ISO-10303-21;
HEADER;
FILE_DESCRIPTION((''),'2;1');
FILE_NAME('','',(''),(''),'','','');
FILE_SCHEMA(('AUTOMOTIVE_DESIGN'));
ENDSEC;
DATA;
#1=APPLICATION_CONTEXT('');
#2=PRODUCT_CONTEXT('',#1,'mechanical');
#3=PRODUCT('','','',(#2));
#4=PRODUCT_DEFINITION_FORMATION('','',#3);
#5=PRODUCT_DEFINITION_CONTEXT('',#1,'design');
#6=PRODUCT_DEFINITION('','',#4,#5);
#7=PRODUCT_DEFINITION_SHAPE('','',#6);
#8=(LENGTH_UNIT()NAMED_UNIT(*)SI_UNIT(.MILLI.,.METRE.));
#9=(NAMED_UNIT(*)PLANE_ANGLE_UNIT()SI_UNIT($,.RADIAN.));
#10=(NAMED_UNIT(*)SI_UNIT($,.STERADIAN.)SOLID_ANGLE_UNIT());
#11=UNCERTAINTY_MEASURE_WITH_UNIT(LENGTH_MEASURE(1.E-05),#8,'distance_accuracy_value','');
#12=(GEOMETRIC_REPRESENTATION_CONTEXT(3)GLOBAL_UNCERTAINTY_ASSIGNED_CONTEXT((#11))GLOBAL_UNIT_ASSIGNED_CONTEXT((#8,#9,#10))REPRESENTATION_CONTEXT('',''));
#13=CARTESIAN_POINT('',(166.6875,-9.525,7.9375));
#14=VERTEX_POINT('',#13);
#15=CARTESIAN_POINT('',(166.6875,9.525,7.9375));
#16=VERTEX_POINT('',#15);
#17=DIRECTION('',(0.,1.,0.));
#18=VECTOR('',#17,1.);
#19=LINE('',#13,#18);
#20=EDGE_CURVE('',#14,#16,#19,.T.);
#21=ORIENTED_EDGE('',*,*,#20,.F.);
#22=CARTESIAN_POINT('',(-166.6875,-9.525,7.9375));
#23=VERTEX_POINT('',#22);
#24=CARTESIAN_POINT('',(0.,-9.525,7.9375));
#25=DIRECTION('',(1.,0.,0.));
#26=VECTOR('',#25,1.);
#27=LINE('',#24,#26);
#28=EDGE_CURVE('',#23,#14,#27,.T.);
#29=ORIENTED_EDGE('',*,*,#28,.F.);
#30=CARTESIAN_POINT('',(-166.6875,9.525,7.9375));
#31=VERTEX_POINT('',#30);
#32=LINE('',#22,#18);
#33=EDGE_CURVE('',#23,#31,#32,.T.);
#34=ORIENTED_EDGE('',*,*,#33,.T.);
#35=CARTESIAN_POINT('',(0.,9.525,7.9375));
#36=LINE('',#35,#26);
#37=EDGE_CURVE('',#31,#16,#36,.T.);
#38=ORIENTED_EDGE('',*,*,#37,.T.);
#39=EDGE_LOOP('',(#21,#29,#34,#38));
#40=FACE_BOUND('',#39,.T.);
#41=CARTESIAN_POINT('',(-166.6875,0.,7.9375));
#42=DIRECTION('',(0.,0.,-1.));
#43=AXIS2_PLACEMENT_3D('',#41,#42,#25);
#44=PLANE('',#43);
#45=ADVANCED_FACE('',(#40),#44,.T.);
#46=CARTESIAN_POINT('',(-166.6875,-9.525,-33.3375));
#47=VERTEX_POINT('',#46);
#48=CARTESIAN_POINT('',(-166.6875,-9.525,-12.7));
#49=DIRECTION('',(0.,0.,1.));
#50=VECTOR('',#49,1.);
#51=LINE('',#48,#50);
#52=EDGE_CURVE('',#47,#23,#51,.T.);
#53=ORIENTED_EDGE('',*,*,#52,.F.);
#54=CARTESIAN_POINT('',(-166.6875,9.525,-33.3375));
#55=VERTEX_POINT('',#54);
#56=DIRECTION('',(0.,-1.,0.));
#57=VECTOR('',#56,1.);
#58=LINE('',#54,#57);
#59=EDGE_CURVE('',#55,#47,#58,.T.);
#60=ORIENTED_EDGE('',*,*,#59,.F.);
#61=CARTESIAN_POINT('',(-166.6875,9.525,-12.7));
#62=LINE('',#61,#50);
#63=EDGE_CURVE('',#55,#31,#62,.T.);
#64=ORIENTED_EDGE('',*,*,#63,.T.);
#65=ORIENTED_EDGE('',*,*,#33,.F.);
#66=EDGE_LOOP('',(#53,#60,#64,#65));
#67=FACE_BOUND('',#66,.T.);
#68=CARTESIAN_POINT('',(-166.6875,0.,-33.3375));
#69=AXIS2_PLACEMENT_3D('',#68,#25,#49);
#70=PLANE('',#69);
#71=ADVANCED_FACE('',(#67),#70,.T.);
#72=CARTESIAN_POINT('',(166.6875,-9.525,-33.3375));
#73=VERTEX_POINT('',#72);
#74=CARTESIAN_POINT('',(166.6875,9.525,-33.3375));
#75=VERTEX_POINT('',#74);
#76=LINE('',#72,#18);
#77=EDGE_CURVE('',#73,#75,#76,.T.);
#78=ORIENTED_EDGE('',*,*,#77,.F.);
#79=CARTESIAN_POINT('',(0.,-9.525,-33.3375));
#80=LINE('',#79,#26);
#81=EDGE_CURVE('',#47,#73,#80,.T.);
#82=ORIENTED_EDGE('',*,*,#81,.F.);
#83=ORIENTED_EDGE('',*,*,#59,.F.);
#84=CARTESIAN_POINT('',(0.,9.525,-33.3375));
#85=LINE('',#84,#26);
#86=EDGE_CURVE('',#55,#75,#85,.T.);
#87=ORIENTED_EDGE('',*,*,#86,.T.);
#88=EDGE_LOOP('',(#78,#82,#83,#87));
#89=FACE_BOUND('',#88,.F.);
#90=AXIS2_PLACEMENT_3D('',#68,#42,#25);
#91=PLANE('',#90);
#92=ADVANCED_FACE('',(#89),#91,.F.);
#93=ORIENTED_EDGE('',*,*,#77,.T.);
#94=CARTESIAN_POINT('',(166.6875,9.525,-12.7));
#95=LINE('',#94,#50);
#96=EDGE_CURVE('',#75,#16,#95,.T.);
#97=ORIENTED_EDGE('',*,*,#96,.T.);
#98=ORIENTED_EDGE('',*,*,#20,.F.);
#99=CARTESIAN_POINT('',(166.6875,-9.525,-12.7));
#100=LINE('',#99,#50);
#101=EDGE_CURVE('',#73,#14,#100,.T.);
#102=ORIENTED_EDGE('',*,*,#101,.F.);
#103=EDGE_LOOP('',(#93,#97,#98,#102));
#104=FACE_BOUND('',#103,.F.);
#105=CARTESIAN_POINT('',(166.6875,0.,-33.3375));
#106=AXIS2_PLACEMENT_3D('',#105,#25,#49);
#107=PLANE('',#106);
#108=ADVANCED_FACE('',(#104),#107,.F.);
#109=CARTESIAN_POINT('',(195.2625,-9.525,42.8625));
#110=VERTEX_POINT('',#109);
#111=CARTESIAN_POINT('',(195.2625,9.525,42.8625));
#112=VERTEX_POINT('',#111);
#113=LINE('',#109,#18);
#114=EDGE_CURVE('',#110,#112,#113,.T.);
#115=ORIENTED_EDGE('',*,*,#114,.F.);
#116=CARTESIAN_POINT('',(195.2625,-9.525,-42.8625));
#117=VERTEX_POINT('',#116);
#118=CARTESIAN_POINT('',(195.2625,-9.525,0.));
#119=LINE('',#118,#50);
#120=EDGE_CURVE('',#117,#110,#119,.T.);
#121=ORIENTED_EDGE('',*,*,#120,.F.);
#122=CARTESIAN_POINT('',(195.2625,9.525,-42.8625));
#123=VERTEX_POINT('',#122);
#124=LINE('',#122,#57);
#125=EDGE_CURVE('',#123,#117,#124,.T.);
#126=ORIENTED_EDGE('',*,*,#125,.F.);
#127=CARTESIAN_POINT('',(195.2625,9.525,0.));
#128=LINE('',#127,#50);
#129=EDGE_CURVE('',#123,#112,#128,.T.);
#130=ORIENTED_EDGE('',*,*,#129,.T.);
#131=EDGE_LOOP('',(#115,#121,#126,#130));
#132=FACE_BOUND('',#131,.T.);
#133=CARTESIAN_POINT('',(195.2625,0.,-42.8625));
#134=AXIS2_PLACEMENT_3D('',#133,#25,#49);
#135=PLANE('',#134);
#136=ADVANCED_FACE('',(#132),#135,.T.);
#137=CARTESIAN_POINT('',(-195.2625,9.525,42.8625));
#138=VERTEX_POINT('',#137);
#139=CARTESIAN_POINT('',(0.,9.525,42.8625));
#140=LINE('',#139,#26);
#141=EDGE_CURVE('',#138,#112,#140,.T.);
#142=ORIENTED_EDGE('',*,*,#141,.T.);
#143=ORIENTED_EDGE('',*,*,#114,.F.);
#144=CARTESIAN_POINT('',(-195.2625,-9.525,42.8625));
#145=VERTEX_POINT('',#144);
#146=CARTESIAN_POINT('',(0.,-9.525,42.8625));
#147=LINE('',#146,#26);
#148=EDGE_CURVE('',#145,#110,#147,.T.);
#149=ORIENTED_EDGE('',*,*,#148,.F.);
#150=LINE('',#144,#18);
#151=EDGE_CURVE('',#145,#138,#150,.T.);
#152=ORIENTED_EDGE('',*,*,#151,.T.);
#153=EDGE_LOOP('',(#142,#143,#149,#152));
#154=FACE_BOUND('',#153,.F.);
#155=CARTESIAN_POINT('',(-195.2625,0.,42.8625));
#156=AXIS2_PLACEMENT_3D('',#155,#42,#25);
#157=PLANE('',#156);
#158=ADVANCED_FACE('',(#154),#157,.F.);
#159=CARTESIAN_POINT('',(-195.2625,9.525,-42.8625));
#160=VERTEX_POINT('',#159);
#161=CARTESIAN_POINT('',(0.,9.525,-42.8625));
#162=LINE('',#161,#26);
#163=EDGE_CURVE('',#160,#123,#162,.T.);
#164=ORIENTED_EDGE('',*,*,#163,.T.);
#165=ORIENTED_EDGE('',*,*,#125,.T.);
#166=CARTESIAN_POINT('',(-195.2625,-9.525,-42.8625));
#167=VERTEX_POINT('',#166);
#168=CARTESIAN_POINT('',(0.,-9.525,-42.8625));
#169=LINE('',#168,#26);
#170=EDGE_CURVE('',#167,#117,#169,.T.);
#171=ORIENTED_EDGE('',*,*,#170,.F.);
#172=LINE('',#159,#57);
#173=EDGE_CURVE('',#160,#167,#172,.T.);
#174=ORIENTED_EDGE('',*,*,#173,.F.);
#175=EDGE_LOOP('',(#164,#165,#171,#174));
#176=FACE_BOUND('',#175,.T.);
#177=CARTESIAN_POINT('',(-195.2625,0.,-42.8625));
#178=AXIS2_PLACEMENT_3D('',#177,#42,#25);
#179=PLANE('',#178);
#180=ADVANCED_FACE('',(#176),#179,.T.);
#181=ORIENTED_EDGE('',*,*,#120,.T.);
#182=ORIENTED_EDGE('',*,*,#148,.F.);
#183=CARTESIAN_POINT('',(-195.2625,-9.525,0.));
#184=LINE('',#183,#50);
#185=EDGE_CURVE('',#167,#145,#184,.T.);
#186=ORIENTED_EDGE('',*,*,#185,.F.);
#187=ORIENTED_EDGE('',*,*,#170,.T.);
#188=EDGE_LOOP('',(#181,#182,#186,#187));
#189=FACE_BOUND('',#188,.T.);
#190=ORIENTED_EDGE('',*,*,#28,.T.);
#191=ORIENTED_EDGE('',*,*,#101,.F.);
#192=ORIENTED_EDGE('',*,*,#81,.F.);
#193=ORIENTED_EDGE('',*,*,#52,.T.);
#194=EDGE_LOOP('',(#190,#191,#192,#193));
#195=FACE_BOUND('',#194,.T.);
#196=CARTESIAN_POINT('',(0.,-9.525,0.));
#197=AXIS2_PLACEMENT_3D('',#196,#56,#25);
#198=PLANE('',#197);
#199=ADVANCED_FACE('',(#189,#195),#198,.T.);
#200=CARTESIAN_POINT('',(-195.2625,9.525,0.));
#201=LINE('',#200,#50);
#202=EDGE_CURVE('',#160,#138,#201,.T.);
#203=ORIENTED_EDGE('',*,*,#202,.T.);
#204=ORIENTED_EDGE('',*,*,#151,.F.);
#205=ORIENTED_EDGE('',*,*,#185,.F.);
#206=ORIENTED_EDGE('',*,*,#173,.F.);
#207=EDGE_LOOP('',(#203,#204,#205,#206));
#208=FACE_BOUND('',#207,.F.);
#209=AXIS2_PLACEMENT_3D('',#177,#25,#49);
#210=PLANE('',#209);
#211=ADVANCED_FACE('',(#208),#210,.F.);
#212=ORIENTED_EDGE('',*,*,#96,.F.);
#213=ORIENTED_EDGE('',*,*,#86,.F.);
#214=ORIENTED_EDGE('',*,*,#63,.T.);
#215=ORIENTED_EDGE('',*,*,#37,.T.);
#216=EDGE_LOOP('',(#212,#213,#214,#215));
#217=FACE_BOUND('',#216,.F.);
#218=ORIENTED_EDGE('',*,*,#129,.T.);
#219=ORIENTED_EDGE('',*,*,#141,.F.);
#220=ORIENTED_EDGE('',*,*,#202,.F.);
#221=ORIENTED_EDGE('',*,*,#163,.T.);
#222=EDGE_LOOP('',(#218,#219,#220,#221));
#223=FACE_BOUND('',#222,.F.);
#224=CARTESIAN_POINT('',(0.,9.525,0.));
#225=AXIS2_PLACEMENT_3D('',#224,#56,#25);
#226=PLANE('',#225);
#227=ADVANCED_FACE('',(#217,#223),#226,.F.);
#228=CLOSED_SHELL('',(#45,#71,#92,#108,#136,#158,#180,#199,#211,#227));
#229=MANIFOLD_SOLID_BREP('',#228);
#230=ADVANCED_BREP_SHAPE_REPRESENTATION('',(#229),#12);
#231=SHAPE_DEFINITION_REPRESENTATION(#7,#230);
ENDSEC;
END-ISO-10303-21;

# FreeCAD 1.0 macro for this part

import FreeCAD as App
import Part
import Sketcher
from FreeCAD import Vector
Q = App.Units.Quantity


def add_polygon(sketch, points):
    """Adds a closed chain of lines whose ends are joined by coincident constraints."""
    first, n = sketch.GeometryCount, len(points)
    for a, b in zip(points, points[1:] + points[:1]):
        sketch.addGeometry(Part.LineSegment(App.Vector(*a, 0), App.Vector(*b, 0)), False)
    for i in range(n):
        sketch.addConstraint(Sketcher.Constraint("Coincident", first + i, 2, first + (i + 1) % n, 1))

doc = App.newDocument("Part")
body = doc.addObject("PartDesign::Body", "Body")

sketch1 = body.newObject("Sketcher::SketchObject", "Sketch")
sketch1.AttachmentSupport = (doc.getObject("XZ_Plane"), [""])
sketch1.MapMode = "FlatFace"
add_polygon(sketch1, [(-195, 43), (-195, -43), (195, -43), (195, 43)])
add_polygon(sketch1, [(167, -33), (-167, -33), (-167, 8), (167, 8)])
sketch1.addConstraint(Sketcher.Constraint("Vertical", 0))
sketch1.addConstraint(Sketcher.Constraint("Horizontal", 1))
sketch1.addConstraint(Sketcher.Constraint("Vertical", 2))
sketch1.addConstraint(Sketcher.Constraint("Horizontal", 3))
sketch1.addConstraint(Sketcher.Constraint("Horizontal", 4))
sketch1.addConstraint(Sketcher.Constraint("Vertical", 5))
sketch1.addConstraint(Sketcher.Constraint("Horizontal", 6))
sketch1.addConstraint(Sketcher.Constraint("Vertical", 7))
sketch1.addConstraint(Sketcher.Constraint("Symmetric", 0, 2, 2, 2, -1, 1))
sketch1.addConstraint(Sketcher.Constraint("DistanceY", 4, 2, 3, 2, Q("3 in")))
sketch1.addConstraint(Sketcher.Constraint("DistanceY", 0, 2, 5, 2, Q("2 in")))
sketch1.addConstraint(Sketcher.Constraint("DistanceX", 1, 1, 1, 2, Q("15.375 in")))
sketch1.addConstraint(Sketcher.Constraint("DistanceX", 4, 2, 4, 1, Q("13.125 in")))
sketch1.addConstraint(Sketcher.Constraint("DistanceY", 0, 2, 0, 1, Q("3.375 in")))
sketch1.addConstraint(Sketcher.Constraint("DistanceX", 4, 2, 1, 2, Q("14.25 in")))
pad1 = body.newObject("PartDesign::Pad", "Pad")
pad1.Profile = sketch1
pad1.Length = Q("0.75 in")
pad1.Midplane = True

doc.recompute()
